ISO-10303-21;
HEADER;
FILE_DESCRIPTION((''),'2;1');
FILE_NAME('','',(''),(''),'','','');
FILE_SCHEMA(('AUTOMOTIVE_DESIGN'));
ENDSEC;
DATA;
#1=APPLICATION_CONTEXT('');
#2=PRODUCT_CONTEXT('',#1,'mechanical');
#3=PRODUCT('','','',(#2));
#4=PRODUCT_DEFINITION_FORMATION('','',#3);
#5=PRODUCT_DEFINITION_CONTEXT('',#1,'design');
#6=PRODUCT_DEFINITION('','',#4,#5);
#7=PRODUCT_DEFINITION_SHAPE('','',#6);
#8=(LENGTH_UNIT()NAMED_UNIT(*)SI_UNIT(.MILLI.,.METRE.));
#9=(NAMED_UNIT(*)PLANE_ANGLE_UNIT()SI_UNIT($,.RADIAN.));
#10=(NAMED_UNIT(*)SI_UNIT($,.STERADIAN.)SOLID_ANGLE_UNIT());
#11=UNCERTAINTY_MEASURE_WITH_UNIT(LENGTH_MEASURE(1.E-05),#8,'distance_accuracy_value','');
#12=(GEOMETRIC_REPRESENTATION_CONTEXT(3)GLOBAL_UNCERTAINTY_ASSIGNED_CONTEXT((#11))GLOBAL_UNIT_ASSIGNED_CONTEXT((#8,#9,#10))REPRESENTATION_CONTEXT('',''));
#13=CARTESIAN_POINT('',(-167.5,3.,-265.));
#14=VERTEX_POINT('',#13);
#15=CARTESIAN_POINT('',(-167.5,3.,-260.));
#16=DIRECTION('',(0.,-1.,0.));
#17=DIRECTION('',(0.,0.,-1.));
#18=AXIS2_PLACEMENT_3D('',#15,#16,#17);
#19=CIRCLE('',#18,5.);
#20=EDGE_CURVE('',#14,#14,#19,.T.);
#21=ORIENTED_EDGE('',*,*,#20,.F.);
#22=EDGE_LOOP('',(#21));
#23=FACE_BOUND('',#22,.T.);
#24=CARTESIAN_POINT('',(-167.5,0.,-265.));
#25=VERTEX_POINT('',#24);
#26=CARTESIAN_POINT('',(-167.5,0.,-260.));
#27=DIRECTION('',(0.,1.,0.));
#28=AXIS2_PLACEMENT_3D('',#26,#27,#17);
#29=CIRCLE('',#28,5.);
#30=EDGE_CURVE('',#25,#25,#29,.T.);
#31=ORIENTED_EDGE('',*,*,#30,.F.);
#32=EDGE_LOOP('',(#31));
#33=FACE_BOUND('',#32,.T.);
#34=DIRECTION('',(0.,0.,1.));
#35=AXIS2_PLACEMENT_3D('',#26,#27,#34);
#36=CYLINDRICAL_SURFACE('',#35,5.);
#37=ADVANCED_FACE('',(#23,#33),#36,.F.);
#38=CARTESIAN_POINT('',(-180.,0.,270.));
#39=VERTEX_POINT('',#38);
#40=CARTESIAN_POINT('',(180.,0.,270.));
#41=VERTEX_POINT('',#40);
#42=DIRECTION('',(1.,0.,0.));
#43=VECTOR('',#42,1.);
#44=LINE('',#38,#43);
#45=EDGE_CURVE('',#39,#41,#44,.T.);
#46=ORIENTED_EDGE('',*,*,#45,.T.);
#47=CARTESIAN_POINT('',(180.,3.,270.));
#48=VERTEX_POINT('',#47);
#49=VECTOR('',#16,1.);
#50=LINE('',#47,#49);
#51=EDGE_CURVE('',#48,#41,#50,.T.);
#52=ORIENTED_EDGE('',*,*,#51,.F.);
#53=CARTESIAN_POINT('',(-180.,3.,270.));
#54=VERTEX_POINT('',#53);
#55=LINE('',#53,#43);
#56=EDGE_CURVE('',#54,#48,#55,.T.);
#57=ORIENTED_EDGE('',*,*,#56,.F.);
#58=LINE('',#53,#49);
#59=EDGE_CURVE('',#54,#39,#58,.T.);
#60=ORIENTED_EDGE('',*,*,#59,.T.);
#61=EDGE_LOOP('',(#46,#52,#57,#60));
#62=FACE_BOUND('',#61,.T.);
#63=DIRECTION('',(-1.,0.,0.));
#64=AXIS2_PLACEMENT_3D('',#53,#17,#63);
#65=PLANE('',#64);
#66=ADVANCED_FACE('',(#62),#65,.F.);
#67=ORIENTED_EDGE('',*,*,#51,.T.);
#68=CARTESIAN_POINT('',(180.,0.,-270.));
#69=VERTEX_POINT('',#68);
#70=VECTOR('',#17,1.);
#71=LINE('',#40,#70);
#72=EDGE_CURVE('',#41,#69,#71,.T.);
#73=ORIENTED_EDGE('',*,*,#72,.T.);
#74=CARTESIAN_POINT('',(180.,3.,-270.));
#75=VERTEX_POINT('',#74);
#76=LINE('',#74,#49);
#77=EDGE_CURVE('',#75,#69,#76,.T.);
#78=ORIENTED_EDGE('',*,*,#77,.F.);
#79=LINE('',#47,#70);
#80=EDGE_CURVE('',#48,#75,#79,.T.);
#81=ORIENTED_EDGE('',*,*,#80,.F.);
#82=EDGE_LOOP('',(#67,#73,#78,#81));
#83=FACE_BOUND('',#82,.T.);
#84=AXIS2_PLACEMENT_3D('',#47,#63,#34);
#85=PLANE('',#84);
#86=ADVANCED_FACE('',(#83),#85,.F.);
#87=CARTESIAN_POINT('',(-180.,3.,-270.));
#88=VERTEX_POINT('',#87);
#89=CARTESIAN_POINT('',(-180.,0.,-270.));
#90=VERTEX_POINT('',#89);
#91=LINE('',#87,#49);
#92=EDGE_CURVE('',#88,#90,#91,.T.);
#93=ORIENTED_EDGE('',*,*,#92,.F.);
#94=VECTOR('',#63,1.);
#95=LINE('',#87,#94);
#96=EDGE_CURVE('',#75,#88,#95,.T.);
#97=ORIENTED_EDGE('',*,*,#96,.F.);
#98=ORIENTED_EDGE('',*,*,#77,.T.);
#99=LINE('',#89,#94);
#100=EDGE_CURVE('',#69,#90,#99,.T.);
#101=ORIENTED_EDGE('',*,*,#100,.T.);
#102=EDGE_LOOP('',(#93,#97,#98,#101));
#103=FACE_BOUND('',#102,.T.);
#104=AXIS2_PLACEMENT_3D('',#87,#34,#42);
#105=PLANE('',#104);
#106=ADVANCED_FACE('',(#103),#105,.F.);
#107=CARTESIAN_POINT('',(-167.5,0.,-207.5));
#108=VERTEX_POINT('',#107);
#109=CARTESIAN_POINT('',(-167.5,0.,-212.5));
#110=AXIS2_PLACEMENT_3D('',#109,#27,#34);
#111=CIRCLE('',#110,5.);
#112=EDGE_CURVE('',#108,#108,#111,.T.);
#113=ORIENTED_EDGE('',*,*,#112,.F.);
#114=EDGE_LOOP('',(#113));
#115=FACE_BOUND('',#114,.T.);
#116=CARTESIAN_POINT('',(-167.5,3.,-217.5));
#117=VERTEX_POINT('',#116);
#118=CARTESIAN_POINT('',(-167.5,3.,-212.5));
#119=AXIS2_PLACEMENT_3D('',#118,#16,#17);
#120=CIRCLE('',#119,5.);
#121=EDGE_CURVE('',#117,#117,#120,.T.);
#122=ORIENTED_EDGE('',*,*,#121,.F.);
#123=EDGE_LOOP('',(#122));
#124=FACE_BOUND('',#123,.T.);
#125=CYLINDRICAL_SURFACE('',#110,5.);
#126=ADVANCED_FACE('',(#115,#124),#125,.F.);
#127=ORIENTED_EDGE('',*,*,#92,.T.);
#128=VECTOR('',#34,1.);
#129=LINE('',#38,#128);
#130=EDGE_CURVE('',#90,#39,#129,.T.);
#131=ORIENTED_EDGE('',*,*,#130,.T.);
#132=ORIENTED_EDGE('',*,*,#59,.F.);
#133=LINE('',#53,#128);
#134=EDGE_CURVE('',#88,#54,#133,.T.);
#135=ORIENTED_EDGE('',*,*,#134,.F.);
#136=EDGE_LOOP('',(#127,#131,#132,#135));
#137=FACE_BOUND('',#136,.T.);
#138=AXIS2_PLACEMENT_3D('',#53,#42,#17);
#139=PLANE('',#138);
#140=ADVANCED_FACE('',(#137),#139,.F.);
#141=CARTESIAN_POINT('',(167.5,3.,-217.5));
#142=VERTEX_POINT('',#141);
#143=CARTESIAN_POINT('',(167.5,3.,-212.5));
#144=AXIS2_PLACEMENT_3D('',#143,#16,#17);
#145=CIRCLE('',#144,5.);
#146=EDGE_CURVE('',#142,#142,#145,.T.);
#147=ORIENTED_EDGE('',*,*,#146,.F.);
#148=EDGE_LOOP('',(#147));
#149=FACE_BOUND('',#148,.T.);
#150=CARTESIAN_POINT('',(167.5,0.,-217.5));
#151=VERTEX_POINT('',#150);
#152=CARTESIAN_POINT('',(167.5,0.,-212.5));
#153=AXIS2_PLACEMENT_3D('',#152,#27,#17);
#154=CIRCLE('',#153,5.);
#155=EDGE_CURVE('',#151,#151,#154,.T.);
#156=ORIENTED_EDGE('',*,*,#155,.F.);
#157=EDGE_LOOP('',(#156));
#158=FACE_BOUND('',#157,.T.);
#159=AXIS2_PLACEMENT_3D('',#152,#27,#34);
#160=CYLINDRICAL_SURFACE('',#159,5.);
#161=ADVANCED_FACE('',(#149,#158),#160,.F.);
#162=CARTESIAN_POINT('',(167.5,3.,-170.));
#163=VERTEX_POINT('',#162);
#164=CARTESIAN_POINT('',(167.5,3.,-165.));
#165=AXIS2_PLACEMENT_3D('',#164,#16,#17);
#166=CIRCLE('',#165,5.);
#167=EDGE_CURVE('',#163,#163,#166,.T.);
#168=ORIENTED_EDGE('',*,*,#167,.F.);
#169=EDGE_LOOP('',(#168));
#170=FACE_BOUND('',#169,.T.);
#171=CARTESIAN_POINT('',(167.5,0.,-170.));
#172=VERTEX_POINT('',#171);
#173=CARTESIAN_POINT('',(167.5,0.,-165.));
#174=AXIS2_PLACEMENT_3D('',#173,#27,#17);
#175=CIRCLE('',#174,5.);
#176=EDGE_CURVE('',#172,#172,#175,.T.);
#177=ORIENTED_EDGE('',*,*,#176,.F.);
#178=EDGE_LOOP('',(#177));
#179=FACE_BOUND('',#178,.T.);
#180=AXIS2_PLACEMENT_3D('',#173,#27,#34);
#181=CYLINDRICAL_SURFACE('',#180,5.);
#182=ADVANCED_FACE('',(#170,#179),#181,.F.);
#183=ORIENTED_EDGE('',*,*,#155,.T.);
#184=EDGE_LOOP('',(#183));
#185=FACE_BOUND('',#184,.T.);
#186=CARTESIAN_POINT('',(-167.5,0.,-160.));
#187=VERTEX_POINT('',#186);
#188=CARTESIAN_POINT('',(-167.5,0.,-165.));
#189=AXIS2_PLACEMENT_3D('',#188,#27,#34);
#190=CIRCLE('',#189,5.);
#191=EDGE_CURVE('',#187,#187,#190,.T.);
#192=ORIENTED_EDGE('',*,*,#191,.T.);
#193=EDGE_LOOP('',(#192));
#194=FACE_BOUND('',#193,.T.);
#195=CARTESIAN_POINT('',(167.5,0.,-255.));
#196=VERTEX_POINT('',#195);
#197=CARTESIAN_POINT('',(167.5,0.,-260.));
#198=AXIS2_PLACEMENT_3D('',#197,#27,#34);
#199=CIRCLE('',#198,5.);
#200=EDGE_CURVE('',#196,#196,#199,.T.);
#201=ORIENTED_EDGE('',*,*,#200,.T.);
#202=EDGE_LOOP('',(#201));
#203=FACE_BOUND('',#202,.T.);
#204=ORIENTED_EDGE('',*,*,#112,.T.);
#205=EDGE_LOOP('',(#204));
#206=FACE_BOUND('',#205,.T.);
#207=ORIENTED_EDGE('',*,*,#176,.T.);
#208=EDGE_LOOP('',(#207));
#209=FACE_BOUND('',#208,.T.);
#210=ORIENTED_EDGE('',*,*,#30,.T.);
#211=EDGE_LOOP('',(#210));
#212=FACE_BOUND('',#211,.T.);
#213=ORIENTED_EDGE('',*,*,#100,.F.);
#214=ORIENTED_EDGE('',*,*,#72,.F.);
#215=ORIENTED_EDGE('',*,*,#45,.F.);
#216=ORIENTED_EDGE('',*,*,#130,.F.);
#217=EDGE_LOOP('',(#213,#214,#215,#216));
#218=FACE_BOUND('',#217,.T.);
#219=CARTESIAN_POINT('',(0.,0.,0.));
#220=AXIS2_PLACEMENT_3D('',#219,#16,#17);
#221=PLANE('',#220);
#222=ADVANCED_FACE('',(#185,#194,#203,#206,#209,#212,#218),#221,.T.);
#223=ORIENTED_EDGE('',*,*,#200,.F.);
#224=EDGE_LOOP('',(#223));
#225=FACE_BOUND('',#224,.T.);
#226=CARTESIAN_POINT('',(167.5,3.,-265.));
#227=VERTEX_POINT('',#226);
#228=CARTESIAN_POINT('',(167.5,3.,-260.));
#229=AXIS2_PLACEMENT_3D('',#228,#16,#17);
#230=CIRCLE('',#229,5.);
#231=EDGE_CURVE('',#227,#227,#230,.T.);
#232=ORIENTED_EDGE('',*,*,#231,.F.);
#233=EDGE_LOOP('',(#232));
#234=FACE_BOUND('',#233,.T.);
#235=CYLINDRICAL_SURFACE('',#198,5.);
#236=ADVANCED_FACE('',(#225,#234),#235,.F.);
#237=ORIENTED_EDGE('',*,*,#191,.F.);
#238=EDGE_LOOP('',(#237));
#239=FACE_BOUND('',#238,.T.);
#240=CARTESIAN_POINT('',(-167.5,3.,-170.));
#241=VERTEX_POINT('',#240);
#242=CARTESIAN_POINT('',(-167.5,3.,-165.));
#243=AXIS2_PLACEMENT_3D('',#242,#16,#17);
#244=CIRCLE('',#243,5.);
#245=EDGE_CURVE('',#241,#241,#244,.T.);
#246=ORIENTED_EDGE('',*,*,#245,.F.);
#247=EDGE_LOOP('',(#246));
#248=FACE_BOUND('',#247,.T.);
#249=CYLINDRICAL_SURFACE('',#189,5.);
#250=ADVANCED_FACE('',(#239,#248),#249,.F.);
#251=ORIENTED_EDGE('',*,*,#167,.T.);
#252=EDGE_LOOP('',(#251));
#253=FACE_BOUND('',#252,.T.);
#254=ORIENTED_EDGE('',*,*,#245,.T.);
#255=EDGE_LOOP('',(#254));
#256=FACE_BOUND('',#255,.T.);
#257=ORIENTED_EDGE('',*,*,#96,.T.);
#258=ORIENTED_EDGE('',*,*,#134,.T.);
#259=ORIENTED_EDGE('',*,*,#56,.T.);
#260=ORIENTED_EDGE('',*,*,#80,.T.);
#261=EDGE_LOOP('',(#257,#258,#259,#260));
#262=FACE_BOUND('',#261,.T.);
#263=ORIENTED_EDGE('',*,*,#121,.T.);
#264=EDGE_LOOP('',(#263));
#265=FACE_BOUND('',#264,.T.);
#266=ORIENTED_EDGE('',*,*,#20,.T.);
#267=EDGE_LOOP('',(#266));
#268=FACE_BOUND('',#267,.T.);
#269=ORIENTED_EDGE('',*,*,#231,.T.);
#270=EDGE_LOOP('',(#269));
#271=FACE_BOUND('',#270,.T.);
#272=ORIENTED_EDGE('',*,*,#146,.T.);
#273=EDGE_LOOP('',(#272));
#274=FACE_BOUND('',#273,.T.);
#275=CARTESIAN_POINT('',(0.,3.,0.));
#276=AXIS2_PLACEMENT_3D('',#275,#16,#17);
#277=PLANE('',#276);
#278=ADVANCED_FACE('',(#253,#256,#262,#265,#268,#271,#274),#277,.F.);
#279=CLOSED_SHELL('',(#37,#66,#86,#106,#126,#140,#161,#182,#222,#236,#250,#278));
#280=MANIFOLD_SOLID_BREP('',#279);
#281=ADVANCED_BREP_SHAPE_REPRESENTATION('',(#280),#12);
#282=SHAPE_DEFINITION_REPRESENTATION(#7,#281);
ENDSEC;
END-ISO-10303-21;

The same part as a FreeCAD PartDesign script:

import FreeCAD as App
import Part
import Sketcher

V = App.Vector
Q = App.Units.Quantity


def add_polygon(sketch, points):
    """Adds a closed chain of lines whose ends are joined by coincident constraints."""
    first, n = sketch.GeometryCount, len(points)
    for a, b in zip(points, points[1:] + points[:1]):
        sketch.addGeometry(Part.LineSegment(App.Vector(*a, 0), App.Vector(*b, 0)), False)
    for i in range(n):
        sketch.addConstraint(Sketcher.Constraint("Coincident", first + i, 2, first + (i + 1) % n, 1))

doc = App.newDocument("Part")
body = doc.addObject("PartDesign::Body", "Body")

# Sketch on XZ plane
sketch1 = doc.addObject("Sketcher::SketchObject", "Sketch")
body.addObject(sketch1)
sketch1.AttachmentSupport = (doc.XZ_Plane, [""])
sketch1.MapMode = "FlatFace"
add_polygon(sketch1, [(-180, -270), (-180, 270), (180, 270), (180, -270)])  # lines 0-3
sketch1.addConstraint(Sketcher.Constraint("Vertical", 0))
sketch1.addConstraint(Sketcher.Constraint("Horizontal", 1))
sketch1.addConstraint(Sketcher.Constraint("Vertical", 2))
sketch1.addConstraint(Sketcher.Constraint("Horizontal", 3))
sketch1.addConstraint(Sketcher.Constraint("Symmetric", 0, 2, 2, 2, -1, 1))
sketch1.addConstraint(Sketcher.Constraint("DistanceX", 1, 1, 1, 2, Q("360 mm")))
sketch1.addConstraint(Sketcher.Constraint("DistanceY", 0, 1, 0, 2, Q("540 mm")))
pad1 = doc.addObject("PartDesign::Pad", "Pad")
body.addObject(pad1)
pad1.Profile = sketch1
pad1.Length = 3
pad1.Reversed = True

# Sketch on XZ plane
sketch2 = doc.addObject("Sketcher::SketchObject", "Sketch001")
body.addObject(sketch2)
sketch2.AttachmentSupport = (doc.XZ_Plane, [""])
sketch2.MapMode = "FlatFace"
sketch2.AttachmentOffset = App.Placement(V(0, 0, -3), App.Rotation())
sketch2.addGeometry(Part.Circle(V(-167.5, -212.5, 0), V(0, 0, 1), 5), False)
sketch2.addGeometry(Part.Circle(V(-167.5, -165, 0), V(0, 0, 1), 5), False)
sketch2.addGeometry(Part.Circle(V(-167.5, -260, 0), V(0, 0, 1), 5), False)
sketch2.addGeometry(Part.Circle(V(167.5, -260, 0), V(0, 0, 1), 5), False)
sketch2.addGeometry(Part.Circle(V(167.5, -165, 0), V(0, 0, 1), 5), False)
sketch2.addGeometry(Part.Circle(V(167.5, -212.5, 0), V(0, 0, 1), 5), False)
sketch2.addConstraint(Sketcher.Constraint("Equal", 0, 1))
sketch2.addConstraint(Sketcher.Constraint("Equal", 1, 2))
sketch2.addConstraint(Sketcher.Constraint("Equal", 2, 3))
sketch2.addConstraint(Sketcher.Constraint("Equal", 3, 4))
sketch2.addConstraint(Sketcher.Constraint("Equal", 4, 5))
sketch2.addConstraint(Sketcher.Constraint("Symmetric", 2, 3, 3, 3, -2))
sketch2.addConstraint(Sketcher.Constraint("Symmetric", 1, 3, 4, 3, -2))
sketch2.addConstraint(Sketcher.Constraint("Symmetric", 0, 3, 5, 3, -2))
sketch2.addConstraint(Sketcher.Constraint("Vertical", 0, 3, 1, 3))
sketch2.addConstraint(Sketcher.Constraint("Vertical", 1, 3, 2, 3))
sketch2.addConstraint(Sketcher.Constraint("Diameter", 0, Q("10 mm")))
sketch2.addConstraint(Sketcher.Constraint("DistanceY", 1, 3, -1, 1, Q("165 mm")))
sketch2.addConstraint(Sketcher.Constraint("DistanceY", 2, 3, -1, 1, Q("260 mm")))
sketch2.addConstraint(Sketcher.Constraint("DistanceX", 2, 3, 3, 3, Q("335 mm")))
sketch2.addConstraint(Sketcher.Constraint("DistanceY", 0, 3, -1, 1, Q("212.5 mm")))
pocket1 = doc.addObject("PartDesign::Pocket", "Pocket")
body.addObject(pocket1)
pocket1.Profile = sketch2
pocket1.Type = "ThroughAll"
pocket1.Midplane = True

doc.recompute()
